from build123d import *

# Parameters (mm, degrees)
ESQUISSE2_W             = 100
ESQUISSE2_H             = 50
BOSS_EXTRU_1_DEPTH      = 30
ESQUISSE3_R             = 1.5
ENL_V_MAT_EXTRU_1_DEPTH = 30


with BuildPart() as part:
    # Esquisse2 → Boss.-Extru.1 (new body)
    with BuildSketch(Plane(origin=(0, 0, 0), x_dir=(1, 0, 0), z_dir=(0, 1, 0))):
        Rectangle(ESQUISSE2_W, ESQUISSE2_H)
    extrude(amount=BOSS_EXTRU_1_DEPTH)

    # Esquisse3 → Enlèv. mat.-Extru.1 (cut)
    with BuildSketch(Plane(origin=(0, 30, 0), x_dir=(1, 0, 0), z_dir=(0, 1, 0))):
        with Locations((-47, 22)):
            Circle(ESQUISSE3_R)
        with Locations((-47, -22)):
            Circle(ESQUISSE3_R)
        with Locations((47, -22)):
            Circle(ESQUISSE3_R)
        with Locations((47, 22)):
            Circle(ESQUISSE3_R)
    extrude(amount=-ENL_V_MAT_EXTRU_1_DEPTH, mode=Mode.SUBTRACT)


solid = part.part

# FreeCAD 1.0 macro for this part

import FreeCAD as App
import Part
import Sketcher
Q = App.Units.Quantity


def add_polygon(sketch, points):
    """Adds a closed chain of lines whose ends are joined by coincident constraints."""
    first, n = sketch.GeometryCount, len(points)
    for a, b in zip(points, points[1:] + points[:1]):
        sketch.addGeometry(Part.LineSegment(App.Vector(*a, 0), App.Vector(*b, 0)), False)
    for i in range(n):
        sketch.addConstraint(Sketcher.Constraint("Coincident", first + i, 2, first + (i + 1) % n, 1))

doc = App.newDocument("Part")
body = doc.addObject("PartDesign::Body", "Body")

sketch1 = body.newObject("Sketcher::SketchObject", "Sketch")
sketch1.AttachmentSupport = (doc.getObject("XZ_Plane"), [""])
sketch1.MapMode = "FlatFace"
add_polygon(sketch1, [(-50, -25), (-50, 25), (50, 25), (50, -25)])
sketch1.addConstraint([
    Sketcher.Constraint("Vertical", 0),
    Sketcher.Constraint("Horizontal", 1),
    Sketcher.Constraint("Vertical", 2),
    Sketcher.Constraint("Horizontal", 3),
    Sketcher.Constraint("Symmetric", 0, 2, 2, 2, -1, 1),
    Sketcher.Constraint("DistanceX", 1, 1, 1, 2, Q("100 mm")),
    Sketcher.Constraint("DistanceY", 0, 1, 0, 2, Q("50 mm")),
])
pad1 = body.newObject("PartDesign::Pad", "Pad")
pad1.Profile = sketch1
pad1.Length = 30
pad1.Reversed = True

sketch2 = body.newObject("Sketcher::SketchObject", "Sketch001")
sketch2.AttachmentSupport = (doc.getObject("XZ_Plane"), [""])
sketch2.MapMode = "FlatFace"
sketch2.AttachmentOffset = App.Placement(App.Vector(0, 0, -30), App.Rotation())
sketch2.addGeometry([
    Part.Circle(App.Vector(-47, -22, 0), App.Vector(0, 0, 1), 1.5),
    Part.Circle(App.Vector(-47, 22, 0), App.Vector(0, 0, 1), 1.5),
    Part.Circle(App.Vector(47, 22, 0), App.Vector(0, 0, 1), 1.5),
    Part.Circle(App.Vector(47, -22, 0), App.Vector(0, 0, 1), 1.5),
], False)
sketch2.addConstraint([
    Sketcher.Constraint("Equal", 0, 1),
    Sketcher.Constraint("Equal", 1, 2),
    Sketcher.Constraint("Equal", 2, 3),
    Sketcher.Constraint("Symmetric", 0, 3, 2, 3, -1, 1),
    Sketcher.Constraint("Symmetric", 1, 3, 3, 3, -1, 1),
    Sketcher.Constraint("Symmetric", 1, 3, 2, 3, -2),
    Sketcher.Constraint("Diameter", 0, Q("3 mm")),
    Sketcher.Constraint("DistanceX", 0, 3, -1, 1, Q("47 mm")),
    Sketcher.Constraint("DistanceY", 0, 3, -1, 1, Q("22 mm")),
])
pocket1 = body.newObject("PartDesign::Pocket", "Pocket")
pocket1.Profile = sketch2
pocket1.Length = 30
pocket1.Reversed = True

doc.recompute()
